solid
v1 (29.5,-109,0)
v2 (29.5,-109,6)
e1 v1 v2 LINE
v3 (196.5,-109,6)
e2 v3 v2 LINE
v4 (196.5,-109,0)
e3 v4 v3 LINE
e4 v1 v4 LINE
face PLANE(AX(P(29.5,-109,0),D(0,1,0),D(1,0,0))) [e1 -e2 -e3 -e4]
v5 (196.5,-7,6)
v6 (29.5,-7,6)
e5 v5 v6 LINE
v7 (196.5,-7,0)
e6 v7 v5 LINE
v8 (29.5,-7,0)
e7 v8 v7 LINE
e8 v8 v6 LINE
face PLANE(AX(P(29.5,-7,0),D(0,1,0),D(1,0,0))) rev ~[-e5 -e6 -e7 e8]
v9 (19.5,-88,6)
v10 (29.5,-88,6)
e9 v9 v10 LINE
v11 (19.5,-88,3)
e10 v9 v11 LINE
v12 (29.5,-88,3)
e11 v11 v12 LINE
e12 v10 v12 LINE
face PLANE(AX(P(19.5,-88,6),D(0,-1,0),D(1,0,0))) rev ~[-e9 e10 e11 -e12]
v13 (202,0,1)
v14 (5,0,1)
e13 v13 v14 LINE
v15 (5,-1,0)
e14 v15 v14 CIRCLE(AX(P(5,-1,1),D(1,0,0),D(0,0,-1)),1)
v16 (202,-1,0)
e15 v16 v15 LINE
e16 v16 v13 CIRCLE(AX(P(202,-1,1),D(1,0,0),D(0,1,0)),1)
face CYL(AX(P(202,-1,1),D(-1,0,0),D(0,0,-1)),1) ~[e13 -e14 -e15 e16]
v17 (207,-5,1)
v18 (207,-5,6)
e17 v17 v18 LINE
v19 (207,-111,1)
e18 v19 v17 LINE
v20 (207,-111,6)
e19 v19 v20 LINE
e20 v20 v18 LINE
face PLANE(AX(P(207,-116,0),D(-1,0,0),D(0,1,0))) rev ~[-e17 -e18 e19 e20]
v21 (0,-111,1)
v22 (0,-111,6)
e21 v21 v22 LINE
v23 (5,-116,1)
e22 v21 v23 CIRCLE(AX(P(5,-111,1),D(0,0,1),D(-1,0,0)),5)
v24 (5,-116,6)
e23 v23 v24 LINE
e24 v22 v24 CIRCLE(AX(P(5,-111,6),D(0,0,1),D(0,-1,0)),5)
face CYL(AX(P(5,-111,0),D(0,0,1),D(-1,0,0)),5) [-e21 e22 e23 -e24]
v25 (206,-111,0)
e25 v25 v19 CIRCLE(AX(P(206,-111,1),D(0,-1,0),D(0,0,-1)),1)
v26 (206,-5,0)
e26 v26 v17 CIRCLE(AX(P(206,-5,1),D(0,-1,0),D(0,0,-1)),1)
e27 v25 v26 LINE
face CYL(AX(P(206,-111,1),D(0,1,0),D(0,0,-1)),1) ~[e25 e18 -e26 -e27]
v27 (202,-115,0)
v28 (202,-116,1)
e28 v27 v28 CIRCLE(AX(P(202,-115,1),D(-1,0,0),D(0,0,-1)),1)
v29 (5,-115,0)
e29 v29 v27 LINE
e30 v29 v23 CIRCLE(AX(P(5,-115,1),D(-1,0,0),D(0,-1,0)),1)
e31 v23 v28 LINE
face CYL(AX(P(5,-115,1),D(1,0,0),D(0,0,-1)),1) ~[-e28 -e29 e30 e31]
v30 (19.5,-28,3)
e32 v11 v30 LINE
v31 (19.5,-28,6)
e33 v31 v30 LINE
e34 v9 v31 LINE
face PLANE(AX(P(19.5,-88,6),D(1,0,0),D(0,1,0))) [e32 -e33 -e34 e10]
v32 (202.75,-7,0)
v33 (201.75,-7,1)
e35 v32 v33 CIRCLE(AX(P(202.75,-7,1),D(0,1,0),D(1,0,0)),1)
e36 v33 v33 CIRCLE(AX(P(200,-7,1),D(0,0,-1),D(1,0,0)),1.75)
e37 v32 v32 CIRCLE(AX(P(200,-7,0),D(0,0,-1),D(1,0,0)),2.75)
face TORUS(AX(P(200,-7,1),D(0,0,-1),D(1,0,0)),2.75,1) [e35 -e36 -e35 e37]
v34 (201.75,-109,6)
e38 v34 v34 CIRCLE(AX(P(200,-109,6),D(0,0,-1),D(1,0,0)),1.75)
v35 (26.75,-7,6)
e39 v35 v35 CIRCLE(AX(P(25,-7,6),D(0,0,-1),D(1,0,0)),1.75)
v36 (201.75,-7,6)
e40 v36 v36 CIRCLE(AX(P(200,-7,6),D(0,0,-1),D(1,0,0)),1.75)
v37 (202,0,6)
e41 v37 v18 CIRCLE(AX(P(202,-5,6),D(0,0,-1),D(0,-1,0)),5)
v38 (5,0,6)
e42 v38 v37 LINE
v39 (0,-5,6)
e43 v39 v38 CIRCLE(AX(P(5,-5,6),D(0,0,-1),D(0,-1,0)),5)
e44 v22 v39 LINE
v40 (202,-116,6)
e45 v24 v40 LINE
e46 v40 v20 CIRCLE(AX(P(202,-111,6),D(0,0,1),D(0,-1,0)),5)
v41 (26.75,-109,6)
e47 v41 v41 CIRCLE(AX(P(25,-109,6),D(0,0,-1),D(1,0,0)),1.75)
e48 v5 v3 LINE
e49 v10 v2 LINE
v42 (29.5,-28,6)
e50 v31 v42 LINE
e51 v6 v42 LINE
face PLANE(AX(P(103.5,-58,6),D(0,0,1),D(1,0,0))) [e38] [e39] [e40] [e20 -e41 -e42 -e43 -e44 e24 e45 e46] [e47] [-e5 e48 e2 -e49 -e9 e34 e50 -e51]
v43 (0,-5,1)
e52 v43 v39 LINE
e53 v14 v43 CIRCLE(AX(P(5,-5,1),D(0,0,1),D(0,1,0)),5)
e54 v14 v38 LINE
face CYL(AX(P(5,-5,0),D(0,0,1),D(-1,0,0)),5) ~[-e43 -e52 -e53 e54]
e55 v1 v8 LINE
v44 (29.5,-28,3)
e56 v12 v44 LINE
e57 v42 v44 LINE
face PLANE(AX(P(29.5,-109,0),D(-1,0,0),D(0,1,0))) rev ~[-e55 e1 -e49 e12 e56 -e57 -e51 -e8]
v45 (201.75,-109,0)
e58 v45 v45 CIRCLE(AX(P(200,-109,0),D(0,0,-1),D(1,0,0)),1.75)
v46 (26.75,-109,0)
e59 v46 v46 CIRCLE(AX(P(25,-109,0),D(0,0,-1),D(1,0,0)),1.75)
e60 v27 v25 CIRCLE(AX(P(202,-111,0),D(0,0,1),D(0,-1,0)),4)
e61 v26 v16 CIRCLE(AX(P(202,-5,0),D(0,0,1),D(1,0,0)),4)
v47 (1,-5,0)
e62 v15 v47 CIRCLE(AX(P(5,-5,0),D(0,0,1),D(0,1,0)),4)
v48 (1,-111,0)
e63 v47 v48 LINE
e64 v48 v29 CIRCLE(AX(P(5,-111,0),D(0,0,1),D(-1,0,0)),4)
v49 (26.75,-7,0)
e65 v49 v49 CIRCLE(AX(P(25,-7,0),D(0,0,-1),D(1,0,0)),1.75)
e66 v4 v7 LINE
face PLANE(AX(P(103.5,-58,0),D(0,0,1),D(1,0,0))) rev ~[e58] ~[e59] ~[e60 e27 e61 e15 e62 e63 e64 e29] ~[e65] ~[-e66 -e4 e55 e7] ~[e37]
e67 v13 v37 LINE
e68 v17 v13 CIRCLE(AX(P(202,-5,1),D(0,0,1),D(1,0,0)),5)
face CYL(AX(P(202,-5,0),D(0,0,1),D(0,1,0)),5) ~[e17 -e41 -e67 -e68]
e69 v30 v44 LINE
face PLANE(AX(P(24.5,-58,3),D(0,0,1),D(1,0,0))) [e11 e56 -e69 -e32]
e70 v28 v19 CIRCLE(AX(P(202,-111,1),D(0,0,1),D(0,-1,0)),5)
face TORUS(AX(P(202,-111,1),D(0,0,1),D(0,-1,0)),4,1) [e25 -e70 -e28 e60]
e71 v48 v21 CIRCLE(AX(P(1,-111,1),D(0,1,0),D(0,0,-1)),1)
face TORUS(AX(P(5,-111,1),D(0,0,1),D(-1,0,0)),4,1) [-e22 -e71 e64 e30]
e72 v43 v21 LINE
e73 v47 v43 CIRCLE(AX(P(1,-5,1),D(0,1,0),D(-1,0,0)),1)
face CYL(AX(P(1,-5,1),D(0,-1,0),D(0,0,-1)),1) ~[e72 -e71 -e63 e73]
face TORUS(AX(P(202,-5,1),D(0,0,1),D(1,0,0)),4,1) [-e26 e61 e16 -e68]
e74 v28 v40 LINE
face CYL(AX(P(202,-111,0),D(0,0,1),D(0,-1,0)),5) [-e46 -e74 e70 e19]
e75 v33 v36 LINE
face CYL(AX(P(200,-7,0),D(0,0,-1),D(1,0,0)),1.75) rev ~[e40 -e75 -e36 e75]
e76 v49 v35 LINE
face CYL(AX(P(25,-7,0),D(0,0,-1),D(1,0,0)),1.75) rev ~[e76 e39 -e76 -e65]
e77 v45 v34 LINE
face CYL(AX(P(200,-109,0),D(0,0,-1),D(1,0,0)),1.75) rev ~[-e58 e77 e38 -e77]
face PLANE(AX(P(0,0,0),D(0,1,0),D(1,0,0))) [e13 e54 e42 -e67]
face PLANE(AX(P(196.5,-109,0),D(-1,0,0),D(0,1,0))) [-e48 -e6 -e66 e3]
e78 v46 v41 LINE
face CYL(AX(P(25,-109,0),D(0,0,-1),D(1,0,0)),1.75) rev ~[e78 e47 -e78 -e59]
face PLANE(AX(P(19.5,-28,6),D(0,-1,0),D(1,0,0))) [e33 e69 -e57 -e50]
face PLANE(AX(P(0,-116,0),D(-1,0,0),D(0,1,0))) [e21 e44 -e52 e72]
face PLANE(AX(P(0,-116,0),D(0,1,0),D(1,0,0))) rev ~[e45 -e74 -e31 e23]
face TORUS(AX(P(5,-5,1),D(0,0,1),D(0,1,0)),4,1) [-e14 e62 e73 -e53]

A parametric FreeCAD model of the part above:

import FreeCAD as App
import Part
import Sketcher


def edges_at(feature, points):
    """Names of the edges that pass closest to the given points."""
    edges = feature.Shape.Edges
    near = lambda p: min(range(len(edges)), key=lambda i: edges[i].distToShape(Part.Vertex(*p))[0])
    return sorted({f"Edge{near(p) + 1}" for p in points})


def add_polygon(sketch, points):
    """Adds a closed chain of lines whose ends are joined by coincident constraints."""
    first, n = sketch.GeometryCount, len(points)
    for a, b in zip(points, points[1:] + points[:1]):
        sketch.addGeometry(Part.LineSegment(App.Vector(*a, 0), App.Vector(*b, 0)), False)
    for i in range(n):
        sketch.addConstraint(Sketcher.Constraint("Coincident", first + i, 2, first + (i + 1) % n, 1))

doc = App.newDocument("Part")
body = doc.addObject("PartDesign::Body", "Body")

# Sketch on XY plane
sketch1 = doc.addObject("Sketcher::SketchObject", "Sketch")
body.addObject(sketch1)
sketch1.AttachmentSupport = (doc.XY_Plane, [""])
sketch1.MapMode = "FlatFace"
add_polygon(sketch1, [(0, 0), (0, -116), (207, -116), (207, 0)])  # lines 0-3
sketch1.addConstraint(Sketcher.Constraint("Vertical", 0))
sketch1.addConstraint(Sketcher.Constraint("Horizontal", 1))
sketch1.addConstraint(Sketcher.Constraint("Vertical", 2))
sketch1.addConstraint(Sketcher.Constraint("Horizontal", 3))
sketch1.addConstraint(Sketcher.Constraint("Coincident", 3, 2, -1, 1))
sketch1.addConstraint(Sketcher.Constraint("DistanceX", 1, 1, 1, 2, 207.0))
sketch1.addConstraint(Sketcher.Constraint("DistanceY", 0, 2, 0, 1, 116.0))
pad1 = doc.addObject("PartDesign::Pad", "Pad")
body.addObject(pad1)
pad1.Profile = sketch1
pad1.Length = 6

# Sketch on XY plane
sketch2 = doc.addObject("Sketcher::SketchObject", "Sketch001")
body.addObject(sketch2)
sketch2.AttachmentSupport = (doc.XY_Plane, [""])
sketch2.MapMode = "FlatFace"
add_polygon(sketch2, [(30, -7), (30, -109), (196, -109), (196, -7)])  # lines 0-3
sketch2.addConstraint(Sketcher.Constraint("Vertical", 0))
sketch2.addConstraint(Sketcher.Constraint("Horizontal", 1))
sketch2.addConstraint(Sketcher.Constraint("Vertical", 2))
sketch2.addConstraint(Sketcher.Constraint("Horizontal", 3))
sketch2.addConstraint(Sketcher.Constraint("DistanceX", 1, 1, 1, 2, 167.0))
sketch2.addConstraint(Sketcher.Constraint("DistanceY", 0, 2, 0, 1, 102.0))
sketch2.addConstraint(Sketcher.Constraint("DistanceY", 0, 2, -1, 1, 109.0))
sketch2.addConstraint(Sketcher.Constraint("DistanceX", -1, 1, 0, 2, 29.5))
pocket1 = doc.addObject("PartDesign::Pocket", "Pocket")
body.addObject(pocket1)
pocket1.Profile = sketch2
pocket1.Length = 25
pocket1.Reversed = True

# Sketch on XY plane
sketch3 = doc.addObject("Sketcher::SketchObject", "Sketch002")
body.addObject(sketch3)
sketch3.AttachmentSupport = (doc.XY_Plane, [""])
sketch3.MapMode = "FlatFace"
sketch3.addGeometry(Part.Circle(App.Vector(200, -7, 0), App.Vector(0, 0, 1), 1.8), False)
sketch3.addGeometry(Part.Circle(App.Vector(200, -109, 0), App.Vector(0, 0, 1), 1.8), False)
sketch3.addGeometry(Part.Circle(App.Vector(25, -109, 0), App.Vector(0, 0, 1), 1.8), False)
sketch3.addGeometry(Part.Circle(App.Vector(25, -7, 0), App.Vector(0, 0, 1), 1.8), False)
sketch3.addConstraint(Sketcher.Constraint("Equal", 0, 1))
sketch3.addConstraint(Sketcher.Constraint("Equal", 1, 2))
sketch3.addConstraint(Sketcher.Constraint("Equal", 2, 3))
sketch3.addConstraint(Sketcher.Constraint("Horizontal", 1, 3, 2, 3))
sketch3.addConstraint(Sketcher.Constraint("Horizontal", 0, 3, 3, 3))
sketch3.addConstraint(Sketcher.Constraint("Vertical", 0, 3, 1, 3))
sketch3.addConstraint(Sketcher.Constraint("Vertical", 2, 3, 3, 3))
sketch3.addConstraint(Sketcher.Constraint("Diameter", 0, 3.5))
sketch3.addConstraint(Sketcher.Constraint("DistanceX", -1, 1, 0, 3, 200.0))
sketch3.addConstraint(Sketcher.Constraint("DistanceY", 0, 3, -1, 1, 7.0))
sketch3.addConstraint(Sketcher.Constraint("DistanceY", 1, 3, -1, 1, 109.0))
sketch3.addConstraint(Sketcher.Constraint("DistanceX", -1, 1, 2, 3, 25.0))
pocket2 = doc.addObject("PartDesign::Pocket", "Pocket001")
body.addObject(pocket2)
pocket2.Profile = sketch3
pocket2.Length = 25
pocket2.Reversed = True
doc.recompute()

fillet = doc.addObject("PartDesign::Fillet", "Fillet")
body.addObject(fillet)
fillet.Base = (pocket2, edges_at(pocket2, [
    (207, 0, 3),
    (207, -116, 3),
    (0, -116, 3),
    (0, 0, 3),
]))
fillet.Radius = 5
doc.recompute()

fillet2 = doc.addObject("PartDesign::Fillet", "Fillet001")
body.addObject(fillet2)
fillet2.Base = (fillet, edges_at(fillet, [(207, -58, 0), (198.25, -7, 0)]))
fillet2.Radius = 1

# Sketch on XY plane
sketch4 = doc.addObject("Sketcher::SketchObject", "Sketch003")
body.addObject(sketch4)
sketch4.AttachmentSupport = (doc.XY_Plane, [""])
sketch4.MapMode = "FlatFace"
sketch4.AttachmentOffset = App.Placement(App.Vector(0, 0, 6), App.Rotation())
add_polygon(sketch4, [(20, -28), (20, -88), (30, -88), (30, -28)])  # lines 0-3
sketch4.addConstraint(Sketcher.Constraint("Vertical", 0))
sketch4.addConstraint(Sketcher.Constraint("Horizontal", 1))
sketch4.addConstraint(Sketcher.Constraint("Vertical", 2))
sketch4.addConstraint(Sketcher.Constraint("Horizontal", 3))
sketch4.addConstraint(Sketcher.Constraint("DistanceX", 1, 1, 1, 2, 10.0))
sketch4.addConstraint(Sketcher.Constraint("DistanceY", 0, 2, 0, 1, 60.0))
sketch4.addConstraint(Sketcher.Constraint("DistanceY", 0, 2, -1, 1, 88.0))
sketch4.addConstraint(Sketcher.Constraint("DistanceX", -1, 1, 0, 2, 19.5))
pocket3 = doc.addObject("PartDesign::Pocket", "Pocket002")
body.addObject(pocket3)
pocket3.Profile = sketch4
pocket3.Length = 3

doc.recompute()
